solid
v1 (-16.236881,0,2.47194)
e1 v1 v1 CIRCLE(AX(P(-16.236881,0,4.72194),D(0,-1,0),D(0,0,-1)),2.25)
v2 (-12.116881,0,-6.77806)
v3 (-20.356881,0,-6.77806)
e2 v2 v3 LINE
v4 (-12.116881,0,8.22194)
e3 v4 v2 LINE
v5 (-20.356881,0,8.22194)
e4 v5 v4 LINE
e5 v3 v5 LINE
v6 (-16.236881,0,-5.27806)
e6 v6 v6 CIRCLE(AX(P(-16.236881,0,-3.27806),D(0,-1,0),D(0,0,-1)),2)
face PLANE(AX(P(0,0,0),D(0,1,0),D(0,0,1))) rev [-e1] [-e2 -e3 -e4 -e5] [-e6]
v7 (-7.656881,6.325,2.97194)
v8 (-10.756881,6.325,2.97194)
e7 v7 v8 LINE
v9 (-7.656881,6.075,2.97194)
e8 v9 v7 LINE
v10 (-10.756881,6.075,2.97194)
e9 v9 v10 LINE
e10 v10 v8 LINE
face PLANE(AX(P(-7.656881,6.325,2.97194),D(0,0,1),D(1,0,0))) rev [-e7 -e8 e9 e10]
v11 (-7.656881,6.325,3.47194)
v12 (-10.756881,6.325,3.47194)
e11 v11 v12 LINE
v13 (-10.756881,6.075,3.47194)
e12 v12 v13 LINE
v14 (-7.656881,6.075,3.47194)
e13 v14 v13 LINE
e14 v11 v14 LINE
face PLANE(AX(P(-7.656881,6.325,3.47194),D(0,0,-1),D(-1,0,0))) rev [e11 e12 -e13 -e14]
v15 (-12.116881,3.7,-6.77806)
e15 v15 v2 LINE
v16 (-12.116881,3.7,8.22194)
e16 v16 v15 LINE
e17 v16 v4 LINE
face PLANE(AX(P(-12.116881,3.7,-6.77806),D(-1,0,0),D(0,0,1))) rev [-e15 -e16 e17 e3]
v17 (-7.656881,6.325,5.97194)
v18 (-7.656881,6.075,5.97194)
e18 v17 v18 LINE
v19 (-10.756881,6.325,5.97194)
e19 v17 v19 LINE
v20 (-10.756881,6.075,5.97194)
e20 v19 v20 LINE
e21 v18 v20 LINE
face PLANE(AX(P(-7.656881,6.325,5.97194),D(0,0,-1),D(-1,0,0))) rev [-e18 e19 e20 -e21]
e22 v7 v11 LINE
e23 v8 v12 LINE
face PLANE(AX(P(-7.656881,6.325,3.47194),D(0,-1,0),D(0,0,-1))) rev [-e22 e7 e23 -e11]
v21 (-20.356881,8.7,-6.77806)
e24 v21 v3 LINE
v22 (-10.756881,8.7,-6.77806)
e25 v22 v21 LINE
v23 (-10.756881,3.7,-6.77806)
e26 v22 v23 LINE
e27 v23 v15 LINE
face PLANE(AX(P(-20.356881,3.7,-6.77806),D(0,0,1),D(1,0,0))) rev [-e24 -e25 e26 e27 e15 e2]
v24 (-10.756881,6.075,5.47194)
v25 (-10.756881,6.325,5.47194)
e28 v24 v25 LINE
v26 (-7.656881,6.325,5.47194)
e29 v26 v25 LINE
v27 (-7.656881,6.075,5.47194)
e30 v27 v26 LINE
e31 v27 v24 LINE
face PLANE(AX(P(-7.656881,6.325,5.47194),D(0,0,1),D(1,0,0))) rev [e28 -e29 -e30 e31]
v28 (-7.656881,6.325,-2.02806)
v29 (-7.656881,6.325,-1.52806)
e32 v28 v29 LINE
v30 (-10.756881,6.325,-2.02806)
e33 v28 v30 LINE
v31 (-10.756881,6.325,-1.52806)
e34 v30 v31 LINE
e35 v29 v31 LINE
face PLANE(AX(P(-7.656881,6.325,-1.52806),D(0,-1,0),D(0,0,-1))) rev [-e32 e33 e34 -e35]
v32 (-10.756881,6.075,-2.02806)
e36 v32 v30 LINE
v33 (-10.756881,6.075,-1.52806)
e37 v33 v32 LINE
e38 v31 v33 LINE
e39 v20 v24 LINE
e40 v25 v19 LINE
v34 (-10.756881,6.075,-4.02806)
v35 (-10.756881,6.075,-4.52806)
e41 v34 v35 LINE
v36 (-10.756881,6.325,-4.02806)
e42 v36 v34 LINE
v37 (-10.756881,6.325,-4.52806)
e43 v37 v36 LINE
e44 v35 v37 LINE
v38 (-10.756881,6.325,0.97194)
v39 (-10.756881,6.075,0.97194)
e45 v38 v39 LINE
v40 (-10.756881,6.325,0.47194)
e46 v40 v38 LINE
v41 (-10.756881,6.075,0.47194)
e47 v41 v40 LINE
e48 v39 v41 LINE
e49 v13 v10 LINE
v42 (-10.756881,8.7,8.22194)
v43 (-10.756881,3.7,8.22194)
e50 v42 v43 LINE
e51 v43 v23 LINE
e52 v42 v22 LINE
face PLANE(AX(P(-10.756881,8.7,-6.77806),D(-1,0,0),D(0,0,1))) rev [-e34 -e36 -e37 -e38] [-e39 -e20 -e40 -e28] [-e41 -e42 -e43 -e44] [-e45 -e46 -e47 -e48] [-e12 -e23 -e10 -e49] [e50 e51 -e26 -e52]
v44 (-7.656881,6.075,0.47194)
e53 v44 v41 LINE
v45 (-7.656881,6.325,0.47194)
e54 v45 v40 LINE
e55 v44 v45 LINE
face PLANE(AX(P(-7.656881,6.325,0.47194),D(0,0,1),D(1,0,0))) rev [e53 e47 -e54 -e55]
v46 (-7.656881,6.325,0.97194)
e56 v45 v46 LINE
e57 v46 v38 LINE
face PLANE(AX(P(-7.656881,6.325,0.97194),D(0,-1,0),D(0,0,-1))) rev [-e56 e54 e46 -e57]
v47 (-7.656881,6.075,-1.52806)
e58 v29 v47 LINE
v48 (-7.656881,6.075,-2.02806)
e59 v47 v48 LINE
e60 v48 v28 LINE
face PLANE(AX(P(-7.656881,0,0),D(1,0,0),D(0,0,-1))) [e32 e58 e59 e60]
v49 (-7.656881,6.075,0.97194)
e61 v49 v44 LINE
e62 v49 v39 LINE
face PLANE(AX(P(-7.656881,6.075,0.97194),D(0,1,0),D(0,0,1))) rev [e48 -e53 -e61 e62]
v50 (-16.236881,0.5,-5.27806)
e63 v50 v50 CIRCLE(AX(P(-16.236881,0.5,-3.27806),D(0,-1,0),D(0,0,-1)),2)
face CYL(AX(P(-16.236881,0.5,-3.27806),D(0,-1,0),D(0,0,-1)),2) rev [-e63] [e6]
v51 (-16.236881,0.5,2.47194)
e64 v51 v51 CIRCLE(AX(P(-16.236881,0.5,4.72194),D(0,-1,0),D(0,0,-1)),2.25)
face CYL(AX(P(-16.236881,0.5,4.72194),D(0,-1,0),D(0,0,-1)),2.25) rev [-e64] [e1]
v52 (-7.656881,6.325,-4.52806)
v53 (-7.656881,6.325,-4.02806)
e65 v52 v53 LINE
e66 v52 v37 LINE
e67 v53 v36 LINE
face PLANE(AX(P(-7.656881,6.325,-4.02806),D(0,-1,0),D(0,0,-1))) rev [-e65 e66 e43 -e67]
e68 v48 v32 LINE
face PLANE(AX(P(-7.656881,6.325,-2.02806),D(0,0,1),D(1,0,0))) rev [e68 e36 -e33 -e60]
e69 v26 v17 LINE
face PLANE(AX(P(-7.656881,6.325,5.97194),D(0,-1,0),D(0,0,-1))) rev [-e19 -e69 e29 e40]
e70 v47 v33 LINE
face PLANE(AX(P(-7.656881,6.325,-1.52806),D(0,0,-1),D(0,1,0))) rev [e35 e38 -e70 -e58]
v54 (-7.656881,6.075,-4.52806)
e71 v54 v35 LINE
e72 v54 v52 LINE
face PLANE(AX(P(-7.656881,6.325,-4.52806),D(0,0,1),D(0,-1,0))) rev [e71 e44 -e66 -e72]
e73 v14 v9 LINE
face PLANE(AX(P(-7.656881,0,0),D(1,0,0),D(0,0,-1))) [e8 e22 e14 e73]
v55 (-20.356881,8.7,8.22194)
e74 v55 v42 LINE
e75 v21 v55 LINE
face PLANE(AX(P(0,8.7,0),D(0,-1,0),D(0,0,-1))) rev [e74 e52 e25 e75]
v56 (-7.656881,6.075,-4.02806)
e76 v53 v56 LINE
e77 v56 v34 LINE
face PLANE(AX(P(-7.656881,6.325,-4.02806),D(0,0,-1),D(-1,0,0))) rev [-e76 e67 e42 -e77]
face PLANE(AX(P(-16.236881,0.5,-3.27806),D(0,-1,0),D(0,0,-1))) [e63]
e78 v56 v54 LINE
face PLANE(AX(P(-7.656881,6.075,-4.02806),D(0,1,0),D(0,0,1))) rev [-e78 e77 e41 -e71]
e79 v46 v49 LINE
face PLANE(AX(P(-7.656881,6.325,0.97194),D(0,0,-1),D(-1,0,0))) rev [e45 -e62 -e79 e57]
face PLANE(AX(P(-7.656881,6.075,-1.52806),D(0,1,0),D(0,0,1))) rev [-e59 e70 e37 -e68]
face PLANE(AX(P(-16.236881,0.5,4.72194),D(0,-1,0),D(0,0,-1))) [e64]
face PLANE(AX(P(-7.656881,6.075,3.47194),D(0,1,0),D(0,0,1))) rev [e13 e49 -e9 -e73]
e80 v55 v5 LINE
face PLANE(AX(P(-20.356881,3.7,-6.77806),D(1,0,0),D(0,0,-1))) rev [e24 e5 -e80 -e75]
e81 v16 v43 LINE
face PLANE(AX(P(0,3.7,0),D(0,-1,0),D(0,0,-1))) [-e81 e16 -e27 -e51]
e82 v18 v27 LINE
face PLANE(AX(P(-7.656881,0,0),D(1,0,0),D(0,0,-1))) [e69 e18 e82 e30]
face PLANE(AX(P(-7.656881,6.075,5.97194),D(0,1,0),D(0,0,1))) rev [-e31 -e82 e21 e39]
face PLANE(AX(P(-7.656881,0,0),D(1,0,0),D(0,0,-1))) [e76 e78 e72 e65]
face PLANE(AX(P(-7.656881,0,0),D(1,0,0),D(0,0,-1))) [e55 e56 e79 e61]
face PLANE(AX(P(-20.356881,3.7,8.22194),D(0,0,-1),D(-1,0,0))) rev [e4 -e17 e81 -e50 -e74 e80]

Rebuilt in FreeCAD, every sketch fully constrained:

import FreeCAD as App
import Part
import Sketcher

V = App.Vector

doc = App.newDocument("Part")
body = doc.addObject("PartDesign::Body", "Body")

sketch1 = body.newObject("Sketcher::SketchObject", "Sketch")
sketch1.AttachmentSupport = (doc.getObject("XZ_Plane"), [""])
sketch1.MapMode = "FlatFace"
sketch1.addGeometry([
    Part.LineSegment(V(-20, -7, 0), V(-20, 8, 0)),
    Part.LineSegment(V(-20, 8, 0), V(-12, 8, 0)),
    Part.LineSegment(V(-12, 8, 0), V(-12, -7, 0)),
    Part.LineSegment(V(-12, -7, 0), V(-20, -7, 0)),
], False)
sketch1.addConstraint([
    Sketcher.Constraint("Coincident", 0, 2, 1, 1),
    Sketcher.Constraint("Coincident", 1, 2, 2, 1),
    Sketcher.Constraint("Coincident", 2, 2, 3, 1),
    Sketcher.Constraint("Coincident", 3, 2, 0, 1),
    Sketcher.Constraint("Vertical", 0),
    Sketcher.Constraint("Horizontal", 1),
    Sketcher.Constraint("Vertical", 2),
    Sketcher.Constraint("Horizontal", 3),
    Sketcher.Constraint("DistanceY", 0, 1, 0, 2, 15.0),
    Sketcher.Constraint("DistanceX", 1, 1, 1, 2, 8.24),
    Sketcher.Constraint("DistanceX", 0, 2, -1, 1, 20.356881),
    Sketcher.Constraint("DistanceY", -1, 1, 0, 2, 8.22194),
])
pad1 = body.newObject("PartDesign::Pad", "Pad")
pad1.Profile = sketch1
pad1.Length = 3.7
pad1.Reversed = True

sketch2 = body.newObject("Sketcher::SketchObject", "Sketch001")
sketch2.AttachmentSupport = (doc.getObject("XZ_Plane"), [""])
sketch2.MapMode = "FlatFace"
sketch2.AttachmentOffset = App.Placement(V(0, 0, -3.7), App.Rotation())
sketch2.addGeometry([
    Part.LineSegment(V(-20, 8, 0), V(-11, 8, 0)),
    Part.LineSegment(V(-11, 8, 0), V(-11, -7, 0)),
    Part.LineSegment(V(-11, -7, 0), V(-20, -7, 0)),
    Part.LineSegment(V(-20, -7, 0), V(-20, 8, 0)),
], False)
sketch2.addConstraint([
    Sketcher.Constraint("Coincident", 0, 2, 1, 1),
    Sketcher.Constraint("Coincident", 1, 2, 2, 1),
    Sketcher.Constraint("Coincident", 2, 2, 3, 1),
    Sketcher.Constraint("Coincident", 3, 2, 0, 1),
    Sketcher.Constraint("Horizontal", 0),
    Sketcher.Constraint("Vertical", 1),
    Sketcher.Constraint("Horizontal", 2),
    Sketcher.Constraint("Vertical", 3),
    Sketcher.Constraint("DistanceY", 1, 2, 1, 1, 15.0),
    Sketcher.Constraint("DistanceX", 0, 1, 0, 2, 9.6),
    Sketcher.Constraint("DistanceX", 0, 2, -1, 1, 10.756881),
    Sketcher.Constraint("DistanceY", -1, 1, 0, 2, 8.22194),
])
pad2 = body.newObject("PartDesign::Pad", "Pad001")
pad2.Profile = sketch2
pad2.Length = 5
pad2.Reversed = True

sketch3 = body.newObject("Sketcher::SketchObject", "Sketch002")
sketch3.AttachmentSupport = (doc.getObject("YZ_Plane"), [""])
sketch3.MapMode = "FlatFace"
sketch3.AttachmentOffset = App.Placement(V(0, 0, -10.756881), App.Rotation())
sketch3.addGeometry([
    Part.LineSegment(V(6.33, 5.97, 0), V(6.08, 5.97, 0)),
    Part.LineSegment(V(6.08, 5.97, 0), V(6.08, 5.47, 0)),
    Part.LineSegment(V(6.08, 5.47, 0), V(6.33, 5.47, 0)),
    Part.LineSegment(V(6.33, 5.47, 0), V(6.33, 5.97, 0)),
    Part.LineSegment(V(6.33, 3.47, 0), V(6.08, 3.47, 0)),
    Part.LineSegment(V(6.08, 3.47, 0), V(6.08, 2.97, 0)),
    Part.LineSegment(V(6.08, 2.97, 0), V(6.33, 2.97, 0)),
    Part.LineSegment(V(6.33, 2.97, 0), V(6.33, 3.47, 0)),
    Part.LineSegment(V(6.33, 0.97, 0), V(6.08, 0.97, 0)),
    Part.LineSegment(V(6.08, 0.97, 0), V(6.08, 0.47, 0)),
    Part.LineSegment(V(6.08, 0.47, 0), V(6.33, 0.47, 0)),
    Part.LineSegment(V(6.33, 0.47, 0), V(6.33, 0.97, 0)),
    Part.LineSegment(V(6.33, -1.53, 0), V(6.08, -1.53, 0)),
    Part.LineSegment(V(6.08, -1.53, 0), V(6.08, -2.03, 0)),
    Part.LineSegment(V(6.08, -2.03, 0), V(6.33, -2.03, 0)),
    Part.LineSegment(V(6.33, -2.03, 0), V(6.33, -1.53, 0)),
    Part.LineSegment(V(6.33, -4.03, 0), V(6.08, -4.03, 0)),
    Part.LineSegment(V(6.08, -4.03, 0), V(6.08, -4.53, 0)),
    Part.LineSegment(V(6.08, -4.53, 0), V(6.33, -4.53, 0)),
    Part.LineSegment(V(6.33, -4.53, 0), V(6.33, -4.03, 0)),
], False)
sketch3.addConstraint([
    Sketcher.Constraint("Coincident", 0, 2, 1, 1),
    Sketcher.Constraint("Coincident", 1, 2, 2, 1),
    Sketcher.Constraint("Coincident", 2, 2, 3, 1),
    Sketcher.Constraint("Coincident", 3, 2, 0, 1),
    Sketcher.Constraint("Coincident", 4, 2, 5, 1),
    Sketcher.Constraint("Coincident", 5, 2, 6, 1),
    Sketcher.Constraint("Coincident", 6, 2, 7, 1),
    Sketcher.Constraint("Coincident", 7, 2, 4, 1),
    Sketcher.Constraint("Coincident", 8, 2, 9, 1),
    Sketcher.Constraint("Coincident", 9, 2, 10, 1),
    Sketcher.Constraint("Coincident", 10, 2, 11, 1),
    Sketcher.Constraint("Coincident", 11, 2, 8, 1),
    Sketcher.Constraint("Coincident", 12, 2, 13, 1),
    Sketcher.Constraint("Coincident", 13, 2, 14, 1),
    Sketcher.Constraint("Coincident", 14, 2, 15, 1),
    Sketcher.Constraint("Coincident", 15, 2, 12, 1),
    Sketcher.Constraint("Coincident", 16, 2, 17, 1),
    Sketcher.Constraint("Coincident", 17, 2, 18, 1),
    Sketcher.Constraint("Coincident", 18, 2, 19, 1),
    Sketcher.Constraint("Coincident", 19, 2, 16, 1),
    Sketcher.Constraint("Horizontal", 0),
    Sketcher.Constraint("Vertical", 1),
    Sketcher.Constraint("Horizontal", 2),
    Sketcher.Constraint("Vertical", 3),
    Sketcher.Constraint("Horizontal", 4),
    Sketcher.Constraint("Vertical", 5),
    Sketcher.Constraint("Horizontal", 6),
    Sketcher.Constraint("Vertical", 7),
    Sketcher.Constraint("Horizontal", 8),
    Sketcher.Constraint("Vertical", 9),
    Sketcher.Constraint("Horizontal", 10),
    Sketcher.Constraint("Vertical", 11),
    Sketcher.Constraint("Horizontal", 12),
    Sketcher.Constraint("Vertical", 13),
    Sketcher.Constraint("Horizontal", 14),
    Sketcher.Constraint("Vertical", 15),
    Sketcher.Constraint("Horizontal", 16),
    Sketcher.Constraint("Vertical", 17),
    Sketcher.Constraint("Horizontal", 18),
    Sketcher.Constraint("Vertical", 19),
    Sketcher.Constraint("Vertical", 1, 2, 4, 2),
    Sketcher.Constraint("Vertical", 3, 2, 6, 2),
    Sketcher.Constraint("Vertical", 5, 2, 8, 2),
    Sketcher.Constraint("Vertical", 7, 2, 10, 2),
    Sketcher.Constraint("Vertical", 9, 2, 12, 2),
    Sketcher.Constraint("Vertical", 11, 2, 14, 2),
    Sketcher.Constraint("Vertical", 13, 2, 16, 2),
    Sketcher.Constraint("Vertical", 15, 2, 18, 2),
    Sketcher.Constraint("Equal", 3, 5),
    Sketcher.Constraint("Equal", 7, 9),
    Sketcher.Constraint("Equal", 11, 13),
    Sketcher.Constraint("Equal", 15, 17),
    Sketcher.Constraint("DistanceY", 1, 2, 1, 1, 0.5),
    Sketcher.Constraint("DistanceY", 4, 2, 1, 2, 2.0),
    Sketcher.Constraint("DistanceY", 8, 2, 5, 2, 2.0),
    Sketcher.Constraint("DistanceY", 12, 2, 9, 2, 2.0),
    Sketcher.Constraint("DistanceY", 16, 2, 13, 2, 2.0),
    Sketcher.Constraint("DistanceX", 0, 2, 0, 1, 0.25),
    Sketcher.Constraint("DistanceX", -1, 1, 0, 2, 6.075),
    Sketcher.Constraint("DistanceY", -1, 1, 0, 2, 5.97194),
])
pad3 = body.newObject("PartDesign::Pad", "Pad002")
pad3.Profile = sketch3
pad3.Length = 3.1

sketch4 = body.newObject("Sketcher::SketchObject", "Sketch003")
sketch4.AttachmentSupport = (doc.getObject("XZ_Plane"), [""])
sketch4.MapMode = "FlatFace"
sketch4.addGeometry([
    Part.Circle(V(-16.2, 4.7, 0), V(0, 0, 1), 2.2),
    Part.Circle(V(-16.2, -3.3, 0), V(0, 0, 1), 2),
], False)
sketch4.addConstraint([
    Sketcher.Constraint("Vertical", 0, 3, 1, 3),
    Sketcher.Constraint("Diameter", 1, 4.0),
    Sketcher.Constraint("Diameter", 0, 4.5),
    Sketcher.Constraint("DistanceY", 1, 3, 0, 3, 8.0),
    Sketcher.Constraint("DistanceX", 0, 3, -1, 1, 16.236881),
    Sketcher.Constraint("DistanceY", -1, 1, 0, 3, 4.72194),
])
pocket1 = body.newObject("PartDesign::Pocket", "Pocket")
pocket1.Profile = sketch4
pocket1.Length = 0.5

doc.recompute()
